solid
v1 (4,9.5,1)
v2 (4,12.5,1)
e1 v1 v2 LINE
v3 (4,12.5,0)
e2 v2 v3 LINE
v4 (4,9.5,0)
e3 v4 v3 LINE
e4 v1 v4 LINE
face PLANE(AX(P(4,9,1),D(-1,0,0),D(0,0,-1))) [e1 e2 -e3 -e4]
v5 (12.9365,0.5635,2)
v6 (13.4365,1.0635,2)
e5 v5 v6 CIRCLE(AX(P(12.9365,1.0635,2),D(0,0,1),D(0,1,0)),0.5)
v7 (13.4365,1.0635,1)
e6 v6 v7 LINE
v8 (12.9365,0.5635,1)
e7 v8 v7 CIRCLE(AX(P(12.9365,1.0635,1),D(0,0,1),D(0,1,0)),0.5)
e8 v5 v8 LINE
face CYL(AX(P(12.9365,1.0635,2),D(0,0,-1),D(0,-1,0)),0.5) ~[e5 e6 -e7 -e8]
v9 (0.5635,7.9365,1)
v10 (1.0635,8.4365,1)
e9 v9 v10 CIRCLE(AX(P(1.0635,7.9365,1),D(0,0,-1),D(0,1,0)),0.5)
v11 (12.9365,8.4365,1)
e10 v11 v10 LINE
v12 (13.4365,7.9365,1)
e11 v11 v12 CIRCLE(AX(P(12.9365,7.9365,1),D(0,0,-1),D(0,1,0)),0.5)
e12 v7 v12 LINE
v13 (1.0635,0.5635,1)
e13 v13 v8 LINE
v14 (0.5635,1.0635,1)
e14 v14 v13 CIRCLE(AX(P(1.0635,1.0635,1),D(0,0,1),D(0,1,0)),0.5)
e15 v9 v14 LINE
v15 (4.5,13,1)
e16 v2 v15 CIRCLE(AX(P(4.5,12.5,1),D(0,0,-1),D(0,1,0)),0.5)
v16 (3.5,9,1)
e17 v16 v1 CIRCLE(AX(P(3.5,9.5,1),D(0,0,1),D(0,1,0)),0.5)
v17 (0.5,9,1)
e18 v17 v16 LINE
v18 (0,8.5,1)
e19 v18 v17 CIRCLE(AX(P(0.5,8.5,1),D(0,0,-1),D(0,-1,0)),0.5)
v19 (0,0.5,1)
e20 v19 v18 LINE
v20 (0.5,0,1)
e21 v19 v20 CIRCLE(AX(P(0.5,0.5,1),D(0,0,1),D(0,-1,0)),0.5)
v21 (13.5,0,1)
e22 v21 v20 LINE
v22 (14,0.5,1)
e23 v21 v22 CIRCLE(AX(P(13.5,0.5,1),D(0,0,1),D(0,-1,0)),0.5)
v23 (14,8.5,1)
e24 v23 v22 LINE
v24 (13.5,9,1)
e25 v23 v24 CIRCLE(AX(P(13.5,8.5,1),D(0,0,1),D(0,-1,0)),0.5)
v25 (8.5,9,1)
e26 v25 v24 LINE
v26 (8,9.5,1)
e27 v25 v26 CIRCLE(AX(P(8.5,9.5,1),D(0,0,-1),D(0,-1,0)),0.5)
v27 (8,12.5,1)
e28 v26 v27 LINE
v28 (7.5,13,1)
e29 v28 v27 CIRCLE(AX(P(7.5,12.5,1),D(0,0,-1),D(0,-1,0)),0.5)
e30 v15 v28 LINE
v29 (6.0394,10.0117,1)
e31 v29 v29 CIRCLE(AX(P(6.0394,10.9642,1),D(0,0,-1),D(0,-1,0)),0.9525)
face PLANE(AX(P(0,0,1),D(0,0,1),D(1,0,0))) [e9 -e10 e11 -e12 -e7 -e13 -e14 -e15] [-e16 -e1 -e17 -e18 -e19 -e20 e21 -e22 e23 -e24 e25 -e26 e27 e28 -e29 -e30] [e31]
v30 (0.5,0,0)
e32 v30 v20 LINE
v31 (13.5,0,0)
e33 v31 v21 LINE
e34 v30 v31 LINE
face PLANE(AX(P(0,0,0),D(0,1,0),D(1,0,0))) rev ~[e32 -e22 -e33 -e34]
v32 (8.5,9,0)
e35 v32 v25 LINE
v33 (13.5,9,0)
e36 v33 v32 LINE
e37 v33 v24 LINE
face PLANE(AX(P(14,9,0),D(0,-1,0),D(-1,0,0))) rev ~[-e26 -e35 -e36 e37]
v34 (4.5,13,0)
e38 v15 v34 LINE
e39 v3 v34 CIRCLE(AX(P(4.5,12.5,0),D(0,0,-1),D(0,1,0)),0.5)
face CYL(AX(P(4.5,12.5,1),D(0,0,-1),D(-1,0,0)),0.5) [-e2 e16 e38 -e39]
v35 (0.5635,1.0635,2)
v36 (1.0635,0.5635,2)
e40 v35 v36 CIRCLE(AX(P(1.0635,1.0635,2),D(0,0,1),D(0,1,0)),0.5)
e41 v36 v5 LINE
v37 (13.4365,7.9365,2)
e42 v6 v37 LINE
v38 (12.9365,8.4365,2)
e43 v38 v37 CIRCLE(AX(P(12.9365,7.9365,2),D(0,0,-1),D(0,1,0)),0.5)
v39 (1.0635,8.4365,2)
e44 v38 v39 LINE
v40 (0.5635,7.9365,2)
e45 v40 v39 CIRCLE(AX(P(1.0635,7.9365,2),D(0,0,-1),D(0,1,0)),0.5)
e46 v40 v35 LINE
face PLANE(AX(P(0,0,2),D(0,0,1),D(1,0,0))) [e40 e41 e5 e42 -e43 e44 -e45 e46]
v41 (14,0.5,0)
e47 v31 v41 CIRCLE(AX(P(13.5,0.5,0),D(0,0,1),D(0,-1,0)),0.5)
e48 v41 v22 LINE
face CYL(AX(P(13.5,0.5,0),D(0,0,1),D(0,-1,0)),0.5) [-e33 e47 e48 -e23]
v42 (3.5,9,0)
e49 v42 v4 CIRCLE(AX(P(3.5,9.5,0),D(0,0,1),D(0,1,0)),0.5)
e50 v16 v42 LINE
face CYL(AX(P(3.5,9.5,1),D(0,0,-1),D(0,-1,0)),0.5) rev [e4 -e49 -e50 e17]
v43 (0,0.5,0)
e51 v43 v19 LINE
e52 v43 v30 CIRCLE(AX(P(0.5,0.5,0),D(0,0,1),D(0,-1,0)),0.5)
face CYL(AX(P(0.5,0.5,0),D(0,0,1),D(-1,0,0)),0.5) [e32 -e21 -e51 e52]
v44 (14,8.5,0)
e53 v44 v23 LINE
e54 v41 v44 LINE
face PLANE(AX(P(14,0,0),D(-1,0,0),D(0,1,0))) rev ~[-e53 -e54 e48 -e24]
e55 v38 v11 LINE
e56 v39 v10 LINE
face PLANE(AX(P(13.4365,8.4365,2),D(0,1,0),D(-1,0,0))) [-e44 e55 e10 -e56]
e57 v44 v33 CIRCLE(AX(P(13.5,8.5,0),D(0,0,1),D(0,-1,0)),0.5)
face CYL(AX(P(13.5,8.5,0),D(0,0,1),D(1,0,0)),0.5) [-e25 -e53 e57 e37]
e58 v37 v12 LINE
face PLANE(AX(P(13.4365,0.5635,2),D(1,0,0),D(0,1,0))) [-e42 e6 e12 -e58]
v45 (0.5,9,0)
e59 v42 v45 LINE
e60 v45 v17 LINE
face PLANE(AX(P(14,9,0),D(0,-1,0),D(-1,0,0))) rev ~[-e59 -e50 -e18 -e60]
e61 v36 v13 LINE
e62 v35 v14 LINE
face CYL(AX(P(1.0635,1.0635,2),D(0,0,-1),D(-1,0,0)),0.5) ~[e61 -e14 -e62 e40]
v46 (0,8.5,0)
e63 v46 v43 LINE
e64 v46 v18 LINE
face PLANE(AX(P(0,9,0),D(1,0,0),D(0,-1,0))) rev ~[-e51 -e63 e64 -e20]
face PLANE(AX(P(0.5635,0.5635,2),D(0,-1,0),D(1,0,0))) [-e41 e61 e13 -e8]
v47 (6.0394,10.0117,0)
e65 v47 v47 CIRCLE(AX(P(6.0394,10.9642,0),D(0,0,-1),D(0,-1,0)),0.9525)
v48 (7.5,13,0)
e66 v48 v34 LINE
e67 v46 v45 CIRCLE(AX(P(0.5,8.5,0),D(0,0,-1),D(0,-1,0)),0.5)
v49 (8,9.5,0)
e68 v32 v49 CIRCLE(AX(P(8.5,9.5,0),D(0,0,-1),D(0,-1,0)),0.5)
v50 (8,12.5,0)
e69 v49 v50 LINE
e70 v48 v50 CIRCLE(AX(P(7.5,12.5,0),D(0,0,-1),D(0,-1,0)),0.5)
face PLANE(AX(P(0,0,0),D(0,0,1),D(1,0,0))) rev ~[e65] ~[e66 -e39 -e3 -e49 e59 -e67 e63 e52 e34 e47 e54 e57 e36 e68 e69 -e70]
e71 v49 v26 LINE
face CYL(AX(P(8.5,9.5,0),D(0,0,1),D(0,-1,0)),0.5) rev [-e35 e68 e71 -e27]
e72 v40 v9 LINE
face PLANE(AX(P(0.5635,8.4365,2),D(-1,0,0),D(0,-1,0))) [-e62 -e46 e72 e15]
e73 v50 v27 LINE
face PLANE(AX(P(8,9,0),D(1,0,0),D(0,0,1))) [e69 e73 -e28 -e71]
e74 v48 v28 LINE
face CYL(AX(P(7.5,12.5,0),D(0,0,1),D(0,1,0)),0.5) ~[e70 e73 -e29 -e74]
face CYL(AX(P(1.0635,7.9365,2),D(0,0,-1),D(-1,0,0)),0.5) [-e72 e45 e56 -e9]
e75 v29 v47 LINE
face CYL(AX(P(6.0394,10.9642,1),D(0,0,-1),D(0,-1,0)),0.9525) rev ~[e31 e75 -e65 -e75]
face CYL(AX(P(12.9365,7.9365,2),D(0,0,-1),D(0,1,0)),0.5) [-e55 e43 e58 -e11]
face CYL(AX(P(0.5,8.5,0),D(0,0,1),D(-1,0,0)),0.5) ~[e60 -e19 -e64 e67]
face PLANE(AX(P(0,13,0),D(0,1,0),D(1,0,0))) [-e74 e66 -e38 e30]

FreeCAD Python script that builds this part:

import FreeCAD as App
import Part
import Sketcher
Q = App.Units.Quantity


def edges_at(feature, points):
    """Names of the edges that pass closest to the given points."""
    edges = feature.Shape.Edges
    near = lambda p: min(range(len(edges)), key=lambda i: edges[i].distToShape(Part.Vertex(*p))[0])
    return sorted({f"Edge{near(p) + 1}" for p in points})


def add_polygon(sketch, points):
    """Adds a closed chain of lines whose ends are joined by coincident constraints."""
    first, n = sketch.GeometryCount, len(points)
    for a, b in zip(points, points[1:] + points[:1]):
        sketch.addGeometry(Part.LineSegment(App.Vector(*a, 0), App.Vector(*b, 0)), False)
    for i in range(n):
        sketch.addConstraint(Sketcher.Constraint("Coincident", first + i, 2, first + (i + 1) % n, 1))

doc = App.newDocument("Part")
body = doc.addObject("PartDesign::Body", "Body")

# Sketch on XY plane
sketch1 = body.newObject("Sketcher::SketchObject", "Sketch")
sketch1.AttachmentSupport = (doc.getObject("XY_Plane"), [""])
sketch1.MapMode = "FlatFace"
add_polygon(sketch1, [(0, 9), (0, 0), (14, 0), (14, 9)])  # lines 0-3
sketch1.addConstraint(Sketcher.Constraint("Vertical", 0))
sketch1.addConstraint(Sketcher.Constraint("Horizontal", 1))
sketch1.addConstraint(Sketcher.Constraint("Vertical", 2))
sketch1.addConstraint(Sketcher.Constraint("Horizontal", 3))
sketch1.addConstraint(Sketcher.Constraint("Coincident", 0, 2, -1, 1))
sketch1.addConstraint(Sketcher.Constraint("DistanceX", 1, 1, 1, 2, Q("14 mm")))
sketch1.addConstraint(Sketcher.Constraint("DistanceY", 0, 2, 0, 1, Q("9 mm")))
pad1 = body.newObject("PartDesign::Pad", "Pad")
pad1.Profile = sketch1
pad1.Length = 2

# Sketch on XY plane
sketch2 = body.newObject("Sketcher::SketchObject", "Sketch001")
sketch2.AttachmentSupport = (doc.getObject("XY_Plane"), [""])
sketch2.MapMode = "FlatFace"
sketch2.AttachmentOffset = App.Placement(App.Vector(0, 0, 2), App.Rotation())
add_polygon(sketch2, [(0, 9), (0, 0), (14, 0), (14, 9)])  # lines 0-3
add_polygon(sketch2, [(1, 1), (1, 8), (13, 8), (13, 1)])  # lines 4-7
sketch2.addConstraint(Sketcher.Constraint("Vertical", 0))
sketch2.addConstraint(Sketcher.Constraint("Horizontal", 1))
sketch2.addConstraint(Sketcher.Constraint("Vertical", 2))
sketch2.addConstraint(Sketcher.Constraint("Horizontal", 3))
sketch2.addConstraint(Sketcher.Constraint("Vertical", 4))
sketch2.addConstraint(Sketcher.Constraint("Horizontal", 5))
sketch2.addConstraint(Sketcher.Constraint("Vertical", 6))
sketch2.addConstraint(Sketcher.Constraint("Horizontal", 7))
sketch2.addConstraint(Sketcher.Constraint("Coincident", 0, 2, -1, 1))
sketch2.addConstraint(Sketcher.Constraint("DistanceX", 1, 1, 1, 2, Q("14 mm")))
sketch2.addConstraint(Sketcher.Constraint("DistanceY", 0, 2, 0, 1, Q("9 mm")))
sketch2.addConstraint(Sketcher.Constraint("DistanceX", -1, 1, 4, 2, Q("0.5635 mm")))
sketch2.addConstraint(Sketcher.Constraint("DistanceY", -1, 1, 6, 2, Q("0.5635 mm")))
sketch2.addConstraint(Sketcher.Constraint("DistanceY", 4, 2, 3, 2, Q("0.5635 mm")))
sketch2.addConstraint(Sketcher.Constraint("DistanceX", 5, 2, 2, 2, Q("0.5635 mm")))
pocket1 = body.newObject("PartDesign::Pocket", "Pocket")
pocket1.Profile = sketch2
pocket1.Length = 1

# Sketch on XZ plane
sketch3 = body.newObject("Sketcher::SketchObject", "Sketch002")
sketch3.AttachmentSupport = (doc.getObject("XZ_Plane"), [""])
sketch3.MapMode = "FlatFace"
sketch3.AttachmentOffset = App.Placement(App.Vector(0, 0, -9), App.Rotation())
add_polygon(sketch3, [(4, 0), (4, 1), (8, 1), (8, 0)])  # lines 0-3
sketch3.addConstraint(Sketcher.Constraint("Vertical", 0))
sketch3.addConstraint(Sketcher.Constraint("Horizontal", 1))
sketch3.addConstraint(Sketcher.Constraint("Vertical", 2))
sketch3.addConstraint(Sketcher.Constraint("Horizontal", 3))
sketch3.addConstraint(Sketcher.Constraint("PointOnObject", 2, 2, -1))
sketch3.addConstraint(Sketcher.Constraint("DistanceX", 1, 1, 1, 2, Q("4 mm")))
sketch3.addConstraint(Sketcher.Constraint("DistanceX", -1, 1, 0, 2, Q("4 mm")))
sketch3.addConstraint(Sketcher.Constraint("DistanceY", 0, 1, 0, 2, Q("1 mm")))
pad2 = body.newObject("PartDesign::Pad", "Pad001")
pad2.Profile = sketch3
pad2.Length = 4
pad2.Reversed = True

# Sketch on XY plane
sketch4 = body.newObject("Sketcher::SketchObject", "Sketch003")
sketch4.AttachmentSupport = (doc.getObject("XY_Plane"), [""])
sketch4.MapMode = "FlatFace"
sketch4.AttachmentOffset = App.Placement(App.Vector(0, 0, 1), App.Rotation())
sketch4.addGeometry(Part.Circle(App.Vector(6, 11, 0), App.Vector(0, 0, 1), 1), False)
sketch4.addConstraint(Sketcher.Constraint("Diameter", 0, Q("1.905 mm")))
sketch4.addConstraint(Sketcher.Constraint("DistanceX", -1, 1, 0, 3, Q("6.0394 mm")))
sketch4.addConstraint(Sketcher.Constraint("DistanceY", -1, 1, 0, 3, Q("10.9642 mm")))
doc.recompute()
hole = body.newObject("PartDesign::Hole", "Hole")
hole.Profile = sketch4
hole.ThreadType = "None"
hole.Diameter = 1.905
hole.DepthType = "ThroughAll"
doc.recompute()

fillet = body.newObject("PartDesign::Fillet", "Fillet")
fillet.Base = (hole, edges_at(hole, [
    (0.564, 0.564, 1.5),
    (0, 0, 0.5),
    (0.564, 8.437, 1.5),
    (0, 9, 0.5),
    (13.437, 0.564, 1.5),
    (14, 0, 0.5),
    (13.437, 8.437, 1.5),
    (14, 9, 0.5),
    (8, 9, 0.5),
    (4, 9, 0.5),
    (4, 13, 0.5),
    (8, 13, 0.5),
]))
fillet.Radius = 0.5

doc.recompute()
